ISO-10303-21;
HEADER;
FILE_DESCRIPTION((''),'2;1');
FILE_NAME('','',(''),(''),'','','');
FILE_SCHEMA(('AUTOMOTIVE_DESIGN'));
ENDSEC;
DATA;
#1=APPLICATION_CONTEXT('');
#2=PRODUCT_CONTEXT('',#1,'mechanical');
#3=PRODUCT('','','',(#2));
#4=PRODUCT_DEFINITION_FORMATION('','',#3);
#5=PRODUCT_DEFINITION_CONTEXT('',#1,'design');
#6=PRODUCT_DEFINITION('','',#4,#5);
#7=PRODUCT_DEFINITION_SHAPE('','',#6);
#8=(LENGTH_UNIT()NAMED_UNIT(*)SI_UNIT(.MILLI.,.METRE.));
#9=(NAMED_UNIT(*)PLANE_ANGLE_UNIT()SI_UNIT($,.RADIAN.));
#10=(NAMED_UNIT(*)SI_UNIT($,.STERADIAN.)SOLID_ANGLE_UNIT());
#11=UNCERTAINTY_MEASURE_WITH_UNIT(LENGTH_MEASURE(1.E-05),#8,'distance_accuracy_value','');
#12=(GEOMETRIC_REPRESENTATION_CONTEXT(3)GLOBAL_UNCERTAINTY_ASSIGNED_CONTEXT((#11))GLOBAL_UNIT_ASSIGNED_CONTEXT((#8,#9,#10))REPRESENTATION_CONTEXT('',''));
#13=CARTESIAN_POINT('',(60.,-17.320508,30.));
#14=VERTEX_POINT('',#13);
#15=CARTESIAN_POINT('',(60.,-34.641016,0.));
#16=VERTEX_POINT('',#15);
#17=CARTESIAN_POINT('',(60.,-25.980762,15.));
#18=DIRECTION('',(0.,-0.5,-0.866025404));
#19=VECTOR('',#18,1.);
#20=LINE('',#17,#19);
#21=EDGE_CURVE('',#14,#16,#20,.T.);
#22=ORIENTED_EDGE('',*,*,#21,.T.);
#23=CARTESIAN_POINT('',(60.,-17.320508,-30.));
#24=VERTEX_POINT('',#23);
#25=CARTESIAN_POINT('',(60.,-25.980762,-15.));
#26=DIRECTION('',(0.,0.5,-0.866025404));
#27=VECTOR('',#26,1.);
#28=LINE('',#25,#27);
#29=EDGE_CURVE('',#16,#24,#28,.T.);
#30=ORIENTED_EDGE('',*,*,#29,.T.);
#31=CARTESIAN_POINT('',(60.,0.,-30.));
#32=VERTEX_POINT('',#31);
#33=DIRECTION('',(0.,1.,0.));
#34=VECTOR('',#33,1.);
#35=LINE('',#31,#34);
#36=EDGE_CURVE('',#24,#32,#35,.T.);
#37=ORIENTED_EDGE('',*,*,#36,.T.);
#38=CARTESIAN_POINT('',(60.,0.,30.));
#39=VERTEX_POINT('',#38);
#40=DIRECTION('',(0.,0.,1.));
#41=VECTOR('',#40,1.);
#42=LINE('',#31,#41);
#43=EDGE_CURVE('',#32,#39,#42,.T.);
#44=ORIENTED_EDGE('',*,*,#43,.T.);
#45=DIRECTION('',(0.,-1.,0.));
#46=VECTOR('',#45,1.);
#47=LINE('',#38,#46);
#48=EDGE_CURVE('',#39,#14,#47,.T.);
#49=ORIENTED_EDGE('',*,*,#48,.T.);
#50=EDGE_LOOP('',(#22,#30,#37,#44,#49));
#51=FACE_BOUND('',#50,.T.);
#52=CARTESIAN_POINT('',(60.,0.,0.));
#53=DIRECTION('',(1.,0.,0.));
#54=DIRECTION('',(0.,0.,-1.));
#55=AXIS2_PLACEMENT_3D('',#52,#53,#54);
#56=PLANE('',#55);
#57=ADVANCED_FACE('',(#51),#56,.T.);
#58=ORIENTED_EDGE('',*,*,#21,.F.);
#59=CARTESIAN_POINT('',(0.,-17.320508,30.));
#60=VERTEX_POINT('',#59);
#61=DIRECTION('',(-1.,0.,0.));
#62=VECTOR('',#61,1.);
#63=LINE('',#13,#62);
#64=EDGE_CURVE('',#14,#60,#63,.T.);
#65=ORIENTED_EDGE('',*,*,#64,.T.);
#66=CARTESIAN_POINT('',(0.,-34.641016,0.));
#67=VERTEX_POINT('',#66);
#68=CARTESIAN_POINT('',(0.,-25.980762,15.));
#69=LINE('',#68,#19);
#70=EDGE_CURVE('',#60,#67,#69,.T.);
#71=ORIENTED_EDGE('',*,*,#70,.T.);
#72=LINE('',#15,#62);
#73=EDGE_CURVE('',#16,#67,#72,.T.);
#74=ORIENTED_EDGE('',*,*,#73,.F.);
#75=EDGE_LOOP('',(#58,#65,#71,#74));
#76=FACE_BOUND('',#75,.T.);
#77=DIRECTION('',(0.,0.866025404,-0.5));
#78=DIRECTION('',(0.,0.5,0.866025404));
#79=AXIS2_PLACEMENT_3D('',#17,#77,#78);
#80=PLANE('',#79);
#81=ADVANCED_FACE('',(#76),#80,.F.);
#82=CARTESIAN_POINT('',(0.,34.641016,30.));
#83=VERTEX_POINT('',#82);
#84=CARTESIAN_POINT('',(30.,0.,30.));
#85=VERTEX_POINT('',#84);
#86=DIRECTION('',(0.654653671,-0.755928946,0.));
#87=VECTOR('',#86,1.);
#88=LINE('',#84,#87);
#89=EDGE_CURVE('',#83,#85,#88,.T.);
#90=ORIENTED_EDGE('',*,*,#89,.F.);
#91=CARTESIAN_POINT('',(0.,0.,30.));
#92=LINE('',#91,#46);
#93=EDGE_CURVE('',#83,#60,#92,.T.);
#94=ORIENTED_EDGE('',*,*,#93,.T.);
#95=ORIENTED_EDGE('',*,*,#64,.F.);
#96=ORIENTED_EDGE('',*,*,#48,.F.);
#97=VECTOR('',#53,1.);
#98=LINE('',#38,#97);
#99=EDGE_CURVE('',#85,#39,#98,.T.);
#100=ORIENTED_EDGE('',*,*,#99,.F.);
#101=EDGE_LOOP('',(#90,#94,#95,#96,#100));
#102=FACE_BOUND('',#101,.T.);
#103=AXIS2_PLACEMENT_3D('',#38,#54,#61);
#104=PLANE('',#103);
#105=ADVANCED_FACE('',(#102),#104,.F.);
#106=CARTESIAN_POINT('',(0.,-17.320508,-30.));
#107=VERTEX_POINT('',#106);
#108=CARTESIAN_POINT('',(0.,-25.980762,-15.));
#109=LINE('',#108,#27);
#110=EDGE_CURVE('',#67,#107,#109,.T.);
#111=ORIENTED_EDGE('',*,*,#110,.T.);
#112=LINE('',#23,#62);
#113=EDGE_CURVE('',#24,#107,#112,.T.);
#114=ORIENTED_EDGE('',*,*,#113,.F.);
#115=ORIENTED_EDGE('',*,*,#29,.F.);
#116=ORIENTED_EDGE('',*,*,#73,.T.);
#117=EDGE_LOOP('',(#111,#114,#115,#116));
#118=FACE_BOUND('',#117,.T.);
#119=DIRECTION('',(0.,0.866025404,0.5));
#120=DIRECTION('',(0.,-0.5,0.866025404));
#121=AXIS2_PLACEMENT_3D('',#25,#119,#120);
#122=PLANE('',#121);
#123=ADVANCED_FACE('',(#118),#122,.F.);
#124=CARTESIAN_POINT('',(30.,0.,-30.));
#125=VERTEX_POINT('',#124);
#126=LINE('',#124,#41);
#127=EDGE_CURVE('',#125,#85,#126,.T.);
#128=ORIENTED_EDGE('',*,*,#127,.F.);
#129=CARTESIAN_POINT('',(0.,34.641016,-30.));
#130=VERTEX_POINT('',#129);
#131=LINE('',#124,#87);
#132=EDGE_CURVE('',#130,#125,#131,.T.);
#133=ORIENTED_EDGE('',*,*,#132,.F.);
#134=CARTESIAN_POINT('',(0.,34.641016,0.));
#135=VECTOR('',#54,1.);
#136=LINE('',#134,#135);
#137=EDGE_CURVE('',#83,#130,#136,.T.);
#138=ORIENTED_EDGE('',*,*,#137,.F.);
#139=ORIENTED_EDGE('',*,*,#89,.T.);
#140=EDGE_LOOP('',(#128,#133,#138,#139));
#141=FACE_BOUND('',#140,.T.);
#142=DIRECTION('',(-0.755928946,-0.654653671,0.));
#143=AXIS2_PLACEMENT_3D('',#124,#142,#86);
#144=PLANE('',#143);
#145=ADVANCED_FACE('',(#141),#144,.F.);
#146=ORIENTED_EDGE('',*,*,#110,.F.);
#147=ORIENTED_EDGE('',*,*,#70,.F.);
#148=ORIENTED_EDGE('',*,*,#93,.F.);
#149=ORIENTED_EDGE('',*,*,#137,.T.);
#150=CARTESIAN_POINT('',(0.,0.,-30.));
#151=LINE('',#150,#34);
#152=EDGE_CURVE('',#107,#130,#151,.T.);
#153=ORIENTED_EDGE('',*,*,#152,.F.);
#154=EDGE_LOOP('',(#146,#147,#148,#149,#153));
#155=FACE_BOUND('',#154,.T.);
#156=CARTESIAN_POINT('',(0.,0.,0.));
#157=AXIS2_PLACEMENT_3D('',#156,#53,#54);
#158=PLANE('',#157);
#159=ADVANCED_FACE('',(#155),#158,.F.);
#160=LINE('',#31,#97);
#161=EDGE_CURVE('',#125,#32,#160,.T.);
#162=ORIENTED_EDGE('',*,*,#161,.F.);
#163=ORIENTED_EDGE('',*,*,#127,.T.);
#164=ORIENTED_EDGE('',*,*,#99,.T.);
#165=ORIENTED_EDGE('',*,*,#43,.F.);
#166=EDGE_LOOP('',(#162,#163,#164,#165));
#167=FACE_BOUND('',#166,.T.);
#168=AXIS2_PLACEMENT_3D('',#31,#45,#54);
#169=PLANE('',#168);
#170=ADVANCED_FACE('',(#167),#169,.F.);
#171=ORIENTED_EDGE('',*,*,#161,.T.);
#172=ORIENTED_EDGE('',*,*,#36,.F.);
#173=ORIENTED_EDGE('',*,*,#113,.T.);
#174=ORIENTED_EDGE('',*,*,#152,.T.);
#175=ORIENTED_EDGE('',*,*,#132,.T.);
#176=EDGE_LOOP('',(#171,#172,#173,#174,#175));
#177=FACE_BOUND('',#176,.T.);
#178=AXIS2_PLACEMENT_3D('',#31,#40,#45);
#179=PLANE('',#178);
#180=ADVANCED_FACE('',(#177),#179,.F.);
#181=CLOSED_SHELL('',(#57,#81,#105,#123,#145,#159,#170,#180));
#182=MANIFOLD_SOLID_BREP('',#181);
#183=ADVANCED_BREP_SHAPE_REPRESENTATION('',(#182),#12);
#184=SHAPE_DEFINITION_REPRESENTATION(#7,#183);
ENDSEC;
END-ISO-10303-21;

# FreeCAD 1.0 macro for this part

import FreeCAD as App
import Part
import Sketcher
Q = App.Units.Quantity

doc = App.newDocument("Part")
body = doc.addObject("PartDesign::Body", "Body")

# Sketch on YZ plane
sketch1 = body.newObject("Sketcher::SketchObject", "Sketch")
sketch1.AttachmentSupport = (doc.getObject("YZ_Plane"), [""])
sketch1.MapMode = "FlatFace"
sketch1.addGeometry([
    Part.LineSegment(App.Vector(-17, -30, 0), App.Vector(35, -30, 0)),  # 0
    Part.LineSegment(App.Vector(35, -30, 0), App.Vector(35, 30, 0)),  # 1
    Part.LineSegment(App.Vector(35, 30, 0), App.Vector(-17, 30, 0)),  # 2
    Part.LineSegment(App.Vector(-17, 30, 0), App.Vector(-35, 0, 0)),  # 3
    Part.LineSegment(App.Vector(-35, 0, 0), App.Vector(-17, -30, 0)),  # 4
], False)
sketch1.addConstraint([
    Sketcher.Constraint("Coincident", 0, 2, 1, 1),
    Sketcher.Constraint("Coincident", 1, 2, 2, 1),
    Sketcher.Constraint("Coincident", 2, 2, 3, 1),
    Sketcher.Constraint("Coincident", 3, 2, 4, 1),
    Sketcher.Constraint("Coincident", 4, 2, 0, 1),
    Sketcher.Constraint("Horizontal", 0),
    Sketcher.Constraint("Vertical", 1),
    Sketcher.Constraint("Horizontal", 2),
    Sketcher.Constraint("Symmetric", 2, 2, 4, 2, -1),
    Sketcher.Constraint("PointOnObject", 3, 2, -1),
    Sketcher.Constraint("DistanceY", 1, 1, 1, 2, Q("60 mm")),
    Sketcher.Constraint("Angle", 3, Q("-120 deg")),
    Sketcher.Constraint("DistanceX", 0, 1, 0, 2, Q("51.961524 mm")),
    Sketcher.Constraint("DistanceX", 2, 2, -1, 1, Q("17.320508 mm")),
])
pad1 = body.newObject("PartDesign::Pad", "Pad")
pad1.Profile = sketch1
pad1.Length = 60

# Sketch on XY plane
sketch2 = body.newObject("Sketcher::SketchObject", "Sketch001")
sketch2.AttachmentSupport = (doc.getObject("XY_Plane"), [""])
sketch2.MapMode = "FlatFace"
sketch2.addGeometry([
    Part.LineSegment(App.Vector(30, 0, 0), App.Vector(60, 0, 0)),
    Part.LineSegment(App.Vector(60, 0, 0), App.Vector(60, 35, 0)),
    Part.LineSegment(App.Vector(60, 35, 0), App.Vector(0, 35, 0)),
    Part.LineSegment(App.Vector(0, 35, 0), App.Vector(30, 0, 0)),
], False)
sketch2.addConstraint([
    Sketcher.Constraint("Coincident", 0, 2, 1, 1),
    Sketcher.Constraint("Coincident", 1, 2, 2, 1),
    Sketcher.Constraint("Coincident", 2, 2, 3, 1),
    Sketcher.Constraint("Coincident", 3, 2, 0, 1),
    Sketcher.Constraint("Horizontal", 0),
    Sketcher.Constraint("Vertical", 1),
    Sketcher.Constraint("Horizontal", 2),
    Sketcher.Constraint("PointOnObject", 0, 2, -1),
    Sketcher.Constraint("PointOnObject", 2, 2, -2),
    Sketcher.Constraint("DistanceX", 0, 1, 0, 2, Q("30 mm")),
    Sketcher.Constraint("DistanceX", 2, 2, 2, 1, Q("60 mm")),
    Sketcher.Constraint("DistanceY", 1, 1, 1, 2, Q("34.641016 mm")),
])
pocket1 = body.newObject("PartDesign::Pocket", "Pocket")
pocket1.Profile = sketch2
pocket1.Type = "ThroughAll"
pocket1.Midplane = True

doc.recompute()
